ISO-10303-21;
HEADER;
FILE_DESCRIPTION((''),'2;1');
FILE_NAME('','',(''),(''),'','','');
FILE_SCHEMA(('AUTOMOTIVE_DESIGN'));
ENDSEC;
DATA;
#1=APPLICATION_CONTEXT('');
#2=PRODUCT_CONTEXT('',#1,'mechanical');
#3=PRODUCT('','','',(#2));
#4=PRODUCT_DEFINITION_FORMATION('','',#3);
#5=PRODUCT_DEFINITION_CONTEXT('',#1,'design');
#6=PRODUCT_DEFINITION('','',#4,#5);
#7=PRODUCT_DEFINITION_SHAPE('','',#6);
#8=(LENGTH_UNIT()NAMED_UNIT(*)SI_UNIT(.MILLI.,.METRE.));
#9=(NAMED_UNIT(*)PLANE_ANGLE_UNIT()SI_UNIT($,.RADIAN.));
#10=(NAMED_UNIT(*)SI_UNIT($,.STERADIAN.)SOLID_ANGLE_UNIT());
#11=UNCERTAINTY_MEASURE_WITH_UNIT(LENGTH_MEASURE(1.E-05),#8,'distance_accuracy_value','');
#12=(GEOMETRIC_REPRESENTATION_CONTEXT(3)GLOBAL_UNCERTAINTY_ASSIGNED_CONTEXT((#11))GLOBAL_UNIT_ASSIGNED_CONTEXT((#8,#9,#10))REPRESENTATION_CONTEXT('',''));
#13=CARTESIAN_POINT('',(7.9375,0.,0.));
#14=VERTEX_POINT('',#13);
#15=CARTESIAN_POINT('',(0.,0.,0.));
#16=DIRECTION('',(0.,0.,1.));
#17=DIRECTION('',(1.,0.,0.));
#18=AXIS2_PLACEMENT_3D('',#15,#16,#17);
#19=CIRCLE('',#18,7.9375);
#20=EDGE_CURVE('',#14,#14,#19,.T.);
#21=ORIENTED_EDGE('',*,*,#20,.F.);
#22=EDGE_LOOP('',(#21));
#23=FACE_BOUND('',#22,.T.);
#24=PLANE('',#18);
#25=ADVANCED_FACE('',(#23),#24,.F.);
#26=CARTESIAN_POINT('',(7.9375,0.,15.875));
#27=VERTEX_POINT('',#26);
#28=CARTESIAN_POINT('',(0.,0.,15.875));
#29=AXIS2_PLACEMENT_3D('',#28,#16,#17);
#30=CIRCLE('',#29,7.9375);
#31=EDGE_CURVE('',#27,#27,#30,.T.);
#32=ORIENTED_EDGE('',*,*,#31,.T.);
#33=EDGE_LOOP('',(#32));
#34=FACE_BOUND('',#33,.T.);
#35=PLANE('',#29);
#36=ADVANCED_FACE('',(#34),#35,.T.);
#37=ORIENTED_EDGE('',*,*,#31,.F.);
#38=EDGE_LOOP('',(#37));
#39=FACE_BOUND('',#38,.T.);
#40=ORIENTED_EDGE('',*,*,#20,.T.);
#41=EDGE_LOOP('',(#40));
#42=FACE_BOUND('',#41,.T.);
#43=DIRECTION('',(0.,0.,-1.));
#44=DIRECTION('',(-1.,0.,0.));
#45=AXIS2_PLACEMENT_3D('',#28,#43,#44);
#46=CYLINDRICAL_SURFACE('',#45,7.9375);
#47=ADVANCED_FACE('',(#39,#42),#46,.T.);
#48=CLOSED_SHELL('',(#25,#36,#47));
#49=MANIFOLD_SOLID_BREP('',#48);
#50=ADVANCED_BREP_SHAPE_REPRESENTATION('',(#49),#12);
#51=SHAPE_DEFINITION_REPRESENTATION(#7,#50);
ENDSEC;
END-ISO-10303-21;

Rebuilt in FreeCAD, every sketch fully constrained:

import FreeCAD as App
import Part
import Sketcher

V = App.Vector
Q = App.Units.Quantity

doc = App.newDocument("Part")
params = doc.addObject("Spreadsheet::Sheet", "Params")
for row, (alias, value) in enumerate([
    ("sketch1_diameter", "0.625 in"),
    ("pad1_length", "0.625 in"),
], start=1):
    params.set(f"A{row}", alias)
    params.set(f"B{row}", "=" + value)
    params.setAlias(f"B{row}", alias)

body = doc.addObject("PartDesign::Body", "Body")

# Sketch on XY plane
sketch1 = doc.addObject("Sketcher::SketchObject", "Sketch")
body.addObject(sketch1)
sketch1.AttachmentSupport = (doc.XY_Plane, [""])
sketch1.MapMode = "FlatFace"
sketch1.addGeometry(Part.Circle(V(0, 0, 0), V(0, 0, 1), 7.9375), False)
sketch1.addConstraint(Sketcher.Constraint("Coincident", 0, 3, -1, 1))
sketch1.addConstraint(Sketcher.Constraint("Diameter", 0, Q("0.625 in")))
sketch1.setExpression("Constraints[1]", "Params.sketch1_diameter")
pad1 = doc.addObject("PartDesign::Pad", "Pad")
body.addObject(pad1)
pad1.Profile = sketch1
pad1.setExpression("Length", "Params.pad1_length")

doc.recompute()
